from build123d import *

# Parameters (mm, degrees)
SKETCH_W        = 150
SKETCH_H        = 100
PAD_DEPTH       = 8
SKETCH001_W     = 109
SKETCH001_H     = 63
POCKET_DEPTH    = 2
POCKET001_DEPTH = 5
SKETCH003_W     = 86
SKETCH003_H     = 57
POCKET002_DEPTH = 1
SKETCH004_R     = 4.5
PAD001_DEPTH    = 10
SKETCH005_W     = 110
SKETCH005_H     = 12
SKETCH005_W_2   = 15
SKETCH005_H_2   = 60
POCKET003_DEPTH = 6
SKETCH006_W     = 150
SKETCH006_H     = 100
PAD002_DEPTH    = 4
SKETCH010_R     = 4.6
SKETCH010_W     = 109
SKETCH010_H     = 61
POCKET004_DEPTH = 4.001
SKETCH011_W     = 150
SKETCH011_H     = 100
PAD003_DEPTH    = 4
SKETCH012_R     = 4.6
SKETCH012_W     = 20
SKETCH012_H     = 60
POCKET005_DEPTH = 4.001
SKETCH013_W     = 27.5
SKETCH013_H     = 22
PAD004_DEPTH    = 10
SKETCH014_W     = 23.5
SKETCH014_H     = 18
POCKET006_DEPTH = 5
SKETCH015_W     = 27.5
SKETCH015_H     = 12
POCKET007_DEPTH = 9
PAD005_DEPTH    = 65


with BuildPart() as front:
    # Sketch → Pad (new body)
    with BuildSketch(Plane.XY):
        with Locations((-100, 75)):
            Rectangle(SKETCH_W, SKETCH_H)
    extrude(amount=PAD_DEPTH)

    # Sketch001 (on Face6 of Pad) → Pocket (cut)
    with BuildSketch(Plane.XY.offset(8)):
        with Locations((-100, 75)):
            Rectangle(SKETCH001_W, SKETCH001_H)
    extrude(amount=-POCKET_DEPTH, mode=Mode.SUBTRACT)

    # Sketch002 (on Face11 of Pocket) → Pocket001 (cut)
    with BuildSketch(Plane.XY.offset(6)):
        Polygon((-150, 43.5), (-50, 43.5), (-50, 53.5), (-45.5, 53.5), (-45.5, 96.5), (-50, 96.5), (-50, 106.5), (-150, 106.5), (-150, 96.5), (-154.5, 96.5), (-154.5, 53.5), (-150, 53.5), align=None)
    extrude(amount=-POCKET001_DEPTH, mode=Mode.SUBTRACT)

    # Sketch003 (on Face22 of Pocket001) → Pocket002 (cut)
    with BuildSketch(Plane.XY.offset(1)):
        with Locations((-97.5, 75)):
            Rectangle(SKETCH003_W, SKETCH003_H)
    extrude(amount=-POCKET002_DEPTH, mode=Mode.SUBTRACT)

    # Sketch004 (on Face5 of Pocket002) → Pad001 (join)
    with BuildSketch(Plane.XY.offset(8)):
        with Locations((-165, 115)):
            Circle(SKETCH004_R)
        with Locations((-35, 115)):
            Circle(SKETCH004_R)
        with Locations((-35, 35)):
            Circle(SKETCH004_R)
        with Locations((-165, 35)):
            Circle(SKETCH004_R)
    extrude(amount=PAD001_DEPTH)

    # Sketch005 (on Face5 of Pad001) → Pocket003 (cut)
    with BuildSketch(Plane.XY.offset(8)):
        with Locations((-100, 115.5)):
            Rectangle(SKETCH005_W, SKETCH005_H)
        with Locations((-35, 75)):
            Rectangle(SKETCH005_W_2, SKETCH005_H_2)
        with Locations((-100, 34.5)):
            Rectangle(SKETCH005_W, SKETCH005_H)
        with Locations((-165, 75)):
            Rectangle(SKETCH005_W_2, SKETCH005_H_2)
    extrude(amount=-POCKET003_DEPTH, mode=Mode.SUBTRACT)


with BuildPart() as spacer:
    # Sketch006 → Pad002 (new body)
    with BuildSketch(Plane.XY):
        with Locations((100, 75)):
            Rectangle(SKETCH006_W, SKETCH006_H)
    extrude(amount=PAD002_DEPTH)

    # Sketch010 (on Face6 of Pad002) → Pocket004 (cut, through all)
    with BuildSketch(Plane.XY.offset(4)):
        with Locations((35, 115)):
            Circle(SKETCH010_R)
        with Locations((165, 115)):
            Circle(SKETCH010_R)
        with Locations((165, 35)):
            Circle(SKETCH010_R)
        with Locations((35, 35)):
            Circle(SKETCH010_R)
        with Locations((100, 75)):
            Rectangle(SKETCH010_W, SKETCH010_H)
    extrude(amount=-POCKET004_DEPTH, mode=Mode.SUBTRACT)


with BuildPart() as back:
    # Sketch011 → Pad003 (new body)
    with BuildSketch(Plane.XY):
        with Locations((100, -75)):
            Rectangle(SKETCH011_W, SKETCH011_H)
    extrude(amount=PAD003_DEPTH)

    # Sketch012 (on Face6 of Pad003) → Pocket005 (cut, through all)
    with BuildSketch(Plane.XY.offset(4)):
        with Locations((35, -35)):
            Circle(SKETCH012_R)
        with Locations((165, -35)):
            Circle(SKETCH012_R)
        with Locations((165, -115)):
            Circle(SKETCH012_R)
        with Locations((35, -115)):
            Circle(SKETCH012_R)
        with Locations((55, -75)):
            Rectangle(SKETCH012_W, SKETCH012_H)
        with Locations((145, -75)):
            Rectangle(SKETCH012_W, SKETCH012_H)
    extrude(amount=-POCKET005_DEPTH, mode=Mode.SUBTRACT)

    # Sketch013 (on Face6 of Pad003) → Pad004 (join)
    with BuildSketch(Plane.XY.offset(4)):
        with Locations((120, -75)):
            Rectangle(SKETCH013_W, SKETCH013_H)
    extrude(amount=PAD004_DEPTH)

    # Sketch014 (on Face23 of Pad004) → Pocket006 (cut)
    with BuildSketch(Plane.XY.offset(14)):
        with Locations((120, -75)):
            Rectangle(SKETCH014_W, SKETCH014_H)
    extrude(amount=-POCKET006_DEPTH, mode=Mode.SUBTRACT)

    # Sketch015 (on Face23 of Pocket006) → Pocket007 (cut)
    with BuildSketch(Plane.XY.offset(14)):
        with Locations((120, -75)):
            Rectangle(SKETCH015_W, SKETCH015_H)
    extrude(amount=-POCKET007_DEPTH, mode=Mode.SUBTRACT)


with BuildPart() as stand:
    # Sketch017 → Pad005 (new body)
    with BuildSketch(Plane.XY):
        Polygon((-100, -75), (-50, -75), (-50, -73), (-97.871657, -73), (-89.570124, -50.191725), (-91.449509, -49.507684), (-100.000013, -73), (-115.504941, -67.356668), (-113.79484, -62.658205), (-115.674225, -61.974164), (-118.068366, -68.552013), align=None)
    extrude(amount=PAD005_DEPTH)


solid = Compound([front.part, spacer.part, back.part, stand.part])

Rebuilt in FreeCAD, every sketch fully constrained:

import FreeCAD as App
import Part
import Sketcher
Q = App.Units.Quantity

doc = App.newDocument("Part")
body = doc.addObject("PartDesign::Body", "Body")

# Sketch on XY plane
sketch1 = body.newObject("Sketcher::SketchObject", "Sketch")
sketch1.AttachmentSupport = (doc.getObject("XY_Plane"), [""])
sketch1.MapMode = "FlatFace"
sketch1.addGeometry(Part.LineSegment(App.Vector(-175, 125, 0), App.Vector(-175, 25, 0)), False)
sketch1.addGeometry(Part.LineSegment(App.Vector(-175, 25, 0), App.Vector(-25, 25, 0)), False)
sketch1.addGeometry(Part.LineSegment(App.Vector(-25, 25, 0), App.Vector(-25, 125, 0)), False)
sketch1.addGeometry(Part.LineSegment(App.Vector(-25, 125, 0), App.Vector(-175, 125, 0)), False)
sketch1.addConstraint(Sketcher.Constraint("Coincident", 0, 2, 1, 1))
sketch1.addConstraint(Sketcher.Constraint("Coincident", 1, 2, 2, 1))
sketch1.addConstraint(Sketcher.Constraint("Coincident", 2, 2, 3, 1))
sketch1.addConstraint(Sketcher.Constraint("Coincident", 3, 2, 0, 1))
sketch1.addConstraint(Sketcher.Constraint("Vertical", 0))
sketch1.addConstraint(Sketcher.Constraint("Horizontal", 1))
sketch1.addConstraint(Sketcher.Constraint("Vertical", 2))
sketch1.addConstraint(Sketcher.Constraint("Horizontal", 3))
sketch1.addConstraint(Sketcher.Constraint("DistanceX", 1, 1, 1, 2, Q("150 mm")))
sketch1.addConstraint(Sketcher.Constraint("DistanceY", 0, 2, 0, 1, Q("100 mm")))
sketch1.addConstraint(Sketcher.Constraint("DistanceX", 0, 2, -1, 1, Q("175 mm")))
sketch1.addConstraint(Sketcher.Constraint("DistanceY", -1, 1, 0, 2, Q("25 mm")))
pad1 = body.newObject("PartDesign::Pad", "Pad")
pad1.Profile = sketch1
pad1.Length = 8

# Sketch on XY plane
sketch2 = body.newObject("Sketcher::SketchObject", "Sketch001")
sketch2.AttachmentSupport = (doc.getObject("XY_Plane"), [""])
sketch2.MapMode = "FlatFace"
sketch2.AttachmentOffset = App.Placement(App.Vector(0, 0, 8), App.Rotation())
sketch2.addGeometry(Part.LineSegment(App.Vector(-154, 106, 0), App.Vector(-154, 44, 0)), False)
sketch2.addGeometry(Part.LineSegment(App.Vector(-154, 44, 0), App.Vector(-46, 44, 0)), False)
sketch2.addGeometry(Part.LineSegment(App.Vector(-46, 44, 0), App.Vector(-46, 106, 0)), False)
sketch2.addGeometry(Part.LineSegment(App.Vector(-46, 106, 0), App.Vector(-154, 106, 0)), False)
sketch2.addConstraint(Sketcher.Constraint("Coincident", 0, 2, 1, 1))
sketch2.addConstraint(Sketcher.Constraint("Coincident", 1, 2, 2, 1))
sketch2.addConstraint(Sketcher.Constraint("Coincident", 2, 2, 3, 1))
sketch2.addConstraint(Sketcher.Constraint("Coincident", 3, 2, 0, 1))
sketch2.addConstraint(Sketcher.Constraint("Vertical", 0))
sketch2.addConstraint(Sketcher.Constraint("Horizontal", 1))
sketch2.addConstraint(Sketcher.Constraint("Vertical", 2))
sketch2.addConstraint(Sketcher.Constraint("Horizontal", 3))
sketch2.addConstraint(Sketcher.Constraint("DistanceX", 1, 1, 1, 2, Q("109 mm")))
sketch2.addConstraint(Sketcher.Constraint("DistanceY", 0, 2, 0, 1, Q("63 mm")))
sketch2.addConstraint(Sketcher.Constraint("DistanceX", 0, 2, -1, 1, Q("154.5 mm")))
sketch2.addConstraint(Sketcher.Constraint("DistanceY", -1, 1, 0, 2, Q("43.5 mm")))
pocket1 = body.newObject("PartDesign::Pocket", "Pocket")
pocket1.Profile = sketch2
pocket1.Length = 2

# Sketch on XY plane
sketch3 = body.newObject("Sketcher::SketchObject", "Sketch002")
sketch3.AttachmentSupport = (doc.getObject("XY_Plane"), [""])
sketch3.MapMode = "FlatFace"
sketch3.AttachmentOffset = App.Placement(App.Vector(0, 0, 6), App.Rotation())
sketch3.addGeometry(Part.LineSegment(App.Vector(-150, 43.5, 0), App.Vector(-50, 43.5, 0)), False)
sketch3.addGeometry(Part.LineSegment(App.Vector(-50, 43.5, 0), App.Vector(-50, 53.5, 0)), False)
sketch3.addGeometry(Part.LineSegment(App.Vector(-50, 53.5, 0), App.Vector(-45.5, 53.5, 0)), False)
sketch3.addGeometry(Part.LineSegment(App.Vector(-45.5, 53.5, 0), App.Vector(-45.5, 96.5, 0)), False)
sketch3.addGeometry(Part.LineSegment(App.Vector(-45.5, 96.5, 0), App.Vector(-50, 96.5, 0)), False)
sketch3.addGeometry(Part.LineSegment(App.Vector(-50, 96.5, 0), App.Vector(-50, 106.5, 0)), False)
sketch3.addGeometry(Part.LineSegment(App.Vector(-50, 106.5, 0), App.Vector(-150, 106.5, 0)), False)
sketch3.addGeometry(Part.LineSegment(App.Vector(-150, 106.5, 0), App.Vector(-150, 96.5, 0)), False)
sketch3.addGeometry(Part.LineSegment(App.Vector(-150, 96.5, 0), App.Vector(-154.5, 96.5, 0)), False)
sketch3.addGeometry(Part.LineSegment(App.Vector(-154.5, 96.5, 0), App.Vector(-154.5, 53.5, 0)), False)
sketch3.addGeometry(Part.LineSegment(App.Vector(-154.5, 53.5, 0), App.Vector(-150, 53.5, 0)), False)
sketch3.addGeometry(Part.LineSegment(App.Vector(-150, 53.5, 0), App.Vector(-150, 43.5, 0)), False)
sketch3.addConstraint(Sketcher.Constraint("Coincident", 0, 2, 1, 1))
sketch3.addConstraint(Sketcher.Constraint("Coincident", 1, 2, 2, 1))
sketch3.addConstraint(Sketcher.Constraint("Coincident", 2, 2, 3, 1))
sketch3.addConstraint(Sketcher.Constraint("Coincident", 3, 2, 4, 1))
sketch3.addConstraint(Sketcher.Constraint("Coincident", 4, 2, 5, 1))
sketch3.addConstraint(Sketcher.Constraint("Coincident", 5, 2, 6, 1))
sketch3.addConstraint(Sketcher.Constraint("Coincident", 6, 2, 7, 1))
sketch3.addConstraint(Sketcher.Constraint("Coincident", 7, 2, 8, 1))
sketch3.addConstraint(Sketcher.Constraint("Coincident", 8, 2, 9, 1))
sketch3.addConstraint(Sketcher.Constraint("Coincident", 9, 2, 10, 1))
sketch3.addConstraint(Sketcher.Constraint("Coincident", 10, 2, 11, 1))
sketch3.addConstraint(Sketcher.Constraint("Coincident", 11, 2, 0, 1))
sketch3.addConstraint(Sketcher.Constraint("Horizontal", 0))
sketch3.addConstraint(Sketcher.Constraint("Vertical", 1))
sketch3.addConstraint(Sketcher.Constraint("Horizontal", 2))
sketch3.addConstraint(Sketcher.Constraint("Vertical", 3))
sketch3.addConstraint(Sketcher.Constraint("Horizontal", 4))
sketch3.addConstraint(Sketcher.Constraint("Vertical", 5))
sketch3.addConstraint(Sketcher.Constraint("Horizontal", 6))
sketch3.addConstraint(Sketcher.Constraint("Vertical", 7))
sketch3.addConstraint(Sketcher.Constraint("Horizontal", 8))
sketch3.addConstraint(Sketcher.Constraint("Vertical", 9))
sketch3.addConstraint(Sketcher.Constraint("Horizontal", 10))
sketch3.addConstraint(Sketcher.Constraint("Vertical", 11))
sketch3.addConstraint(Sketcher.Constraint("Horizontal", 4, 2, 7, 2))
sketch3.addConstraint(Sketcher.Constraint("Horizontal", 2, 2, 9, 2))
sketch3.addConstraint(Sketcher.Constraint("Vertical", 1, 2, 4, 2))
sketch3.addConstraint(Sketcher.Constraint("Vertical", 7, 2, 10, 2))
sketch3.addConstraint(Sketcher.Constraint("Equal", 4, 8))
sketch3.addConstraint(Sketcher.Constraint("Equal", 1, 5))
sketch3.addConstraint(Sketcher.Constraint("DistanceX", 0, 1, 0, 2, Q("100 mm")))
sketch3.addConstraint(Sketcher.Constraint("DistanceY", 1, 1, 1, 2, Q("10 mm")))
sketch3.addConstraint(Sketcher.Constraint("DistanceY", 3, 1, 3, 2, Q("43 mm")))
sketch3.addConstraint(Sketcher.Constraint("DistanceX", 2, 1, 2, 2, Q("4.5 mm")))
sketch3.addConstraint(Sketcher.Constraint("DistanceX", 0, 2, -1, 1, Q("50 mm")))
sketch3.addConstraint(Sketcher.Constraint("DistanceY", -1, 1, 0, 2, Q("43.5 mm")))
pocket2 = body.newObject("PartDesign::Pocket", "Pocket001")
pocket2.Profile = sketch3
pocket2.Length = 5

# Sketch on XY plane
sketch4 = body.newObject("Sketcher::SketchObject", "Sketch003")
sketch4.AttachmentSupport = (doc.getObject("XY_Plane"), [""])
sketch4.MapMode = "FlatFace"
sketch4.AttachmentOffset = App.Placement(App.Vector(0, 0, 1), App.Rotation())
sketch4.addGeometry(Part.LineSegment(App.Vector(-140, 104, 0), App.Vector(-140, 46, 0)), False)
sketch4.addGeometry(Part.LineSegment(App.Vector(-140, 46, 0), App.Vector(-54, 46, 0)), False)
sketch4.addGeometry(Part.LineSegment(App.Vector(-54, 46, 0), App.Vector(-54, 104, 0)), False)
sketch4.addGeometry(Part.LineSegment(App.Vector(-54, 104, 0), App.Vector(-140, 104, 0)), False)
sketch4.addConstraint(Sketcher.Constraint("Coincident", 0, 2, 1, 1))
sketch4.addConstraint(Sketcher.Constraint("Coincident", 1, 2, 2, 1))
sketch4.addConstraint(Sketcher.Constraint("Coincident", 2, 2, 3, 1))
sketch4.addConstraint(Sketcher.Constraint("Coincident", 3, 2, 0, 1))
sketch4.addConstraint(Sketcher.Constraint("Vertical", 0))
sketch4.addConstraint(Sketcher.Constraint("Horizontal", 1))
sketch4.addConstraint(Sketcher.Constraint("Vertical", 2))
sketch4.addConstraint(Sketcher.Constraint("Horizontal", 3))
sketch4.addConstraint(Sketcher.Constraint("DistanceX", 1, 1, 1, 2, Q("86 mm")))
sketch4.addConstraint(Sketcher.Constraint("DistanceY", 0, 2, 0, 1, Q("57 mm")))
sketch4.addConstraint(Sketcher.Constraint("DistanceX", 0, 2, -1, 1, Q("140.5 mm")))
sketch4.addConstraint(Sketcher.Constraint("DistanceY", -1, 1, 0, 2, Q("46.5 mm")))
pocket3 = body.newObject("PartDesign::Pocket", "Pocket002")
pocket3.Profile = sketch4
pocket3.Length = 1

# Sketch on XY plane
sketch5 = body.newObject("Sketcher::SketchObject", "Sketch004")
sketch5.AttachmentSupport = (doc.getObject("XY_Plane"), [""])
sketch5.MapMode = "FlatFace"
sketch5.AttachmentOffset = App.Placement(App.Vector(0, 0, 8), App.Rotation())
sketch5.addGeometry(Part.Circle(App.Vector(-165, 115, 0), App.Vector(0, 0, 1), 4.5), False)
sketch5.addGeometry(Part.Circle(App.Vector(-35, 115, 0), App.Vector(0, 0, 1), 4.5), False)
sketch5.addGeometry(Part.Circle(App.Vector(-35, 35, 0), App.Vector(0, 0, 1), 4.5), False)
sketch5.addGeometry(Part.Circle(App.Vector(-165, 35, 0), App.Vector(0, 0, 1), 4.5), False)
sketch5.addConstraint(Sketcher.Constraint("Equal", 0, 1))
sketch5.addConstraint(Sketcher.Constraint("Equal", 1, 2))
sketch5.addConstraint(Sketcher.Constraint("Equal", 2, 3))
sketch5.addConstraint(Sketcher.Constraint("Horizontal", 0, 3, 1, 3))
sketch5.addConstraint(Sketcher.Constraint("Horizontal", 2, 3, 3, 3))
sketch5.addConstraint(Sketcher.Constraint("Vertical", 1, 3, 2, 3))
sketch5.addConstraint(Sketcher.Constraint("Vertical", 0, 3, 3, 3))
sketch5.addConstraint(Sketcher.Constraint("Diameter", 0, Q("9 mm")))
sketch5.addConstraint(Sketcher.Constraint("DistanceX", 0, 3, -1, 1, Q("165 mm")))
sketch5.addConstraint(Sketcher.Constraint("DistanceY", -1, 1, 0, 3, Q("115 mm")))
sketch5.addConstraint(Sketcher.Constraint("DistanceX", 1, 3, -1, 1, Q("35 mm")))
sketch5.addConstraint(Sketcher.Constraint("DistanceY", -1, 1, 2, 3, Q("35 mm")))
pad2 = body.newObject("PartDesign::Pad", "Pad001")
pad2.Profile = sketch5
pad2.Length = 10

# Sketch on XY plane
sketch6 = body.newObject("Sketcher::SketchObject", "Sketch005")
sketch6.AttachmentSupport = (doc.getObject("XY_Plane"), [""])
sketch6.MapMode = "FlatFace"
sketch6.AttachmentOffset = App.Placement(App.Vector(0, 0, 8), App.Rotation())
sketch6.addGeometry(Part.LineSegment(App.Vector(-155, 122, 0), App.Vector(-155, 110, 0)), False)
sketch6.addGeometry(Part.LineSegment(App.Vector(-155, 110, 0), App.Vector(-45, 110, 0)), False)
sketch6.addGeometry(Part.LineSegment(App.Vector(-45, 110, 0), App.Vector(-45, 122, 0)), False)
sketch6.addGeometry(Part.LineSegment(App.Vector(-45, 122, 0), App.Vector(-155, 122, 0)), False)
sketch6.addGeometry(Part.LineSegment(App.Vector(-42, 105, 0), App.Vector(-42, 45, 0)), False)
sketch6.addGeometry(Part.LineSegment(App.Vector(-42, 45, 0), App.Vector(-28, 45, 0)), False)
sketch6.addGeometry(Part.LineSegment(App.Vector(-28, 45, 0), App.Vector(-28, 105, 0)), False)
sketch6.addGeometry(Part.LineSegment(App.Vector(-28, 105, 0), App.Vector(-42, 105, 0)), False)
sketch6.addGeometry(Part.LineSegment(App.Vector(-155, 40, 0), App.Vector(-155, 28, 0)), False)
sketch6.addGeometry(Part.LineSegment(App.Vector(-155, 28, 0), App.Vector(-45, 28, 0)), False)
sketch6.addGeometry(Part.LineSegment(App.Vector(-45, 28, 0), App.Vector(-45, 40, 0)), False)
sketch6.addGeometry(Part.LineSegment(App.Vector(-45, 40, 0), App.Vector(-155, 40, 0)), False)
sketch6.addGeometry(Part.LineSegment(App.Vector(-172, 105, 0), App.Vector(-172, 45, 0)), False)
sketch6.addGeometry(Part.LineSegment(App.Vector(-172, 45, 0), App.Vector(-158, 45, 0)), False)
sketch6.addGeometry(Part.LineSegment(App.Vector(-158, 45, 0), App.Vector(-158, 105, 0)), False)
sketch6.addGeometry(Part.LineSegment(App.Vector(-158, 105, 0), App.Vector(-172, 105, 0)), False)
sketch6.addConstraint(Sketcher.Constraint("Coincident", 0, 2, 1, 1))
sketch6.addConstraint(Sketcher.Constraint("Coincident", 1, 2, 2, 1))
sketch6.addConstraint(Sketcher.Constraint("Coincident", 2, 2, 3, 1))
sketch6.addConstraint(Sketcher.Constraint("Coincident", 3, 2, 0, 1))
sketch6.addConstraint(Sketcher.Constraint("Coincident", 4, 2, 5, 1))
sketch6.addConstraint(Sketcher.Constraint("Coincident", 5, 2, 6, 1))
sketch6.addConstraint(Sketcher.Constraint("Coincident", 6, 2, 7, 1))
sketch6.addConstraint(Sketcher.Constraint("Coincident", 7, 2, 4, 1))
sketch6.addConstraint(Sketcher.Constraint("Coincident", 8, 2, 9, 1))
sketch6.addConstraint(Sketcher.Constraint("Coincident", 9, 2, 10, 1))
sketch6.addConstraint(Sketcher.Constraint("Coincident", 10, 2, 11, 1))
sketch6.addConstraint(Sketcher.Constraint("Coincident", 11, 2, 8, 1))
sketch6.addConstraint(Sketcher.Constraint("Coincident", 12, 2, 13, 1))
sketch6.addConstraint(Sketcher.Constraint("Coincident", 13, 2, 14, 1))
sketch6.addConstraint(Sketcher.Constraint("Coincident", 14, 2, 15, 1))
sketch6.addConstraint(Sketcher.Constraint("Coincident", 15, 2, 12, 1))
sketch6.addConstraint(Sketcher.Constraint("Vertical", 0))
sketch6.addConstraint(Sketcher.Constraint("Horizontal", 1))
sketch6.addConstraint(Sketcher.Constraint("Vertical", 2))
sketch6.addConstraint(Sketcher.Constraint("Horizontal", 3))
sketch6.addConstraint(Sketcher.Constraint("Vertical", 4))
sketch6.addConstraint(Sketcher.Constraint("Horizontal", 5))
sketch6.addConstraint(Sketcher.Constraint("Vertical", 6))
sketch6.addConstraint(Sketcher.Constraint("Horizontal", 7))
sketch6.addConstraint(Sketcher.Constraint("Vertical", 8))
sketch6.addConstraint(Sketcher.Constraint("Horizontal", 9))
sketch6.addConstraint(Sketcher.Constraint("Vertical", 10))
sketch6.addConstraint(Sketcher.Constraint("Horizontal", 11))
sketch6.addConstraint(Sketcher.Constraint("Vertical", 12))
sketch6.addConstraint(Sketcher.Constraint("Horizontal", 13))
sketch6.addConstraint(Sketcher.Constraint("Vertical", 14))
sketch6.addConstraint(Sketcher.Constraint("Horizontal", 15))
sketch6.addConstraint(Sketcher.Constraint("Horizontal", 5, 2, 12, 2))
sketch6.addConstraint(Sketcher.Constraint("Horizontal", 7, 2, 14, 2))
sketch6.addConstraint(Sketcher.Constraint("Vertical", 3, 2, 8, 2))
sketch6.addConstraint(Sketcher.Constraint("Vertical", 2, 2, 9, 2))
sketch6.addConstraint(Sketcher.Constraint("Equal", 7, 13))
sketch6.addConstraint(Sketcher.Constraint("Equal", 2, 8))
sketch6.addConstraint(Sketcher.Constraint("DistanceX", 1, 1, 1, 2, Q("110 mm")))
sketch6.addConstraint(Sketcher.Constraint("DistanceX", 5, 1, 5, 2, Q("15 mm")))
sketch6.addConstraint(Sketcher.Constraint("DistanceY", 0, 2, 0, 1, Q("12 mm")))
sketch6.addConstraint(Sketcher.Constraint("DistanceY", 4, 2, 4, 1, Q("60 mm")))
sketch6.addConstraint(Sketcher.Constraint("DistanceX", 0, 2, -1, 1, Q("155 mm")))
sketch6.addConstraint(Sketcher.Constraint("DistanceY", -1, 1, 4, 2, Q("45 mm")))
sketch6.addConstraint(Sketcher.Constraint("DistanceY", 8, 2, 0, 2, Q("81 mm")))
sketch6.addConstraint(Sketcher.Constraint("DistanceY", -1, 1, 0, 2, Q("109.5 mm")))
sketch6.addConstraint(Sketcher.Constraint("DistanceX", 4, 2, -1, 1, Q("42.5 mm")))
sketch6.addConstraint(Sketcher.Constraint("DistanceX", 12, 2, -1, 1, Q("172.5 mm")))
pocket4 = body.newObject("PartDesign::Pocket", "Pocket003")
pocket4.Profile = sketch6
pocket4.Length = 6
body2 = doc.addObject("PartDesign::Body", "Body001")

# Sketch on XY plane
sketch7 = body2.newObject("Sketcher::SketchObject", "Sketch006")
sketch7.AttachmentSupport = (doc.getObject("XY_Plane001"), [""])
sketch7.MapMode = "FlatFace"
sketch7.addGeometry(Part.LineSegment(App.Vector(25, 125, 0), App.Vector(25, 25, 0)), False)
sketch7.addGeometry(Part.LineSegment(App.Vector(25, 25, 0), App.Vector(175, 25, 0)), False)
sketch7.addGeometry(Part.LineSegment(App.Vector(175, 25, 0), App.Vector(175, 125, 0)), False)
sketch7.addGeometry(Part.LineSegment(App.Vector(175, 125, 0), App.Vector(25, 125, 0)), False)
sketch7.addConstraint(Sketcher.Constraint("Coincident", 0, 2, 1, 1))
sketch7.addConstraint(Sketcher.Constraint("Coincident", 1, 2, 2, 1))
sketch7.addConstraint(Sketcher.Constraint("Coincident", 2, 2, 3, 1))
sketch7.addConstraint(Sketcher.Constraint("Coincident", 3, 2, 0, 1))
sketch7.addConstraint(Sketcher.Constraint("Vertical", 0))
sketch7.addConstraint(Sketcher.Constraint("Horizontal", 1))
sketch7.addConstraint(Sketcher.Constraint("Vertical", 2))
sketch7.addConstraint(Sketcher.Constraint("Horizontal", 3))
sketch7.addConstraint(Sketcher.Constraint("DistanceX", 1, 1, 1, 2, Q("150 mm")))
sketch7.addConstraint(Sketcher.Constraint("DistanceY", 0, 2, 0, 1, Q("100 mm")))
sketch7.addConstraint(Sketcher.Constraint("DistanceX", -1, 1, 0, 2, Q("25 mm")))
sketch7.addConstraint(Sketcher.Constraint("DistanceY", -1, 1, 0, 2, Q("25 mm")))
pad3 = body2.newObject("PartDesign::Pad", "Pad002")
pad3.Profile = sketch7
pad3.Length = 4

# Sketch on XY plane
sketch8 = body2.newObject("Sketcher::SketchObject", "Sketch007")
sketch8.AttachmentSupport = (doc.getObject("XY_Plane001"), [""])
sketch8.MapMode = "FlatFace"
sketch8.AttachmentOffset = App.Placement(App.Vector(0, 0, 4), App.Rotation())
sketch8.addGeometry(Part.Circle(App.Vector(35, 115, 0), App.Vector(0, 0, 1), 4.6), False)
sketch8.addGeometry(Part.Circle(App.Vector(165, 115, 0), App.Vector(0, 0, 1), 4.6), False)
sketch8.addGeometry(Part.Circle(App.Vector(165, 35, 0), App.Vector(0, 0, 1), 4.6), False)
sketch8.addGeometry(Part.Circle(App.Vector(35, 35, 0), App.Vector(0, 0, 1), 4.6), False)
sketch8.addGeometry(Part.LineSegment(App.Vector(45.5, 105.5, 0), App.Vector(45.5, 44.5, 0)), False)
sketch8.addGeometry(Part.LineSegment(App.Vector(45.5, 44.5, 0), App.Vector(154.5, 44.5, 0)), False)
sketch8.addGeometry(Part.LineSegment(App.Vector(154.5, 44.5, 0), App.Vector(154.5, 105.5, 0)), False)
sketch8.addGeometry(Part.LineSegment(App.Vector(154.5, 105.5, 0), App.Vector(45.5, 105.5, 0)), False)
sketch8.addConstraint(Sketcher.Constraint("Coincident", 4, 2, 5, 1))
sketch8.addConstraint(Sketcher.Constraint("Coincident", 5, 2, 6, 1))
sketch8.addConstraint(Sketcher.Constraint("Coincident", 6, 2, 7, 1))
sketch8.addConstraint(Sketcher.Constraint("Coincident", 7, 2, 4, 1))
sketch8.addConstraint(Sketcher.Constraint("Vertical", 4))
sketch8.addConstraint(Sketcher.Constraint("Horizontal", 5))
sketch8.addConstraint(Sketcher.Constraint("Vertical", 6))
sketch8.addConstraint(Sketcher.Constraint("Horizontal", 7))
sketch8.addConstraint(Sketcher.Constraint("Equal", 0, 1))
sketch8.addConstraint(Sketcher.Constraint("Equal", 1, 2))
sketch8.addConstraint(Sketcher.Constraint("Equal", 2, 3))
sketch8.addConstraint(Sketcher.Constraint("Horizontal", 0, 3, 1, 3))
sketch8.addConstraint(Sketcher.Constraint("Horizontal", 2, 3, 3, 3))
sketch8.addConstraint(Sketcher.Constraint("Vertical", 1, 3, 2, 3))
sketch8.addConstraint(Sketcher.Constraint("Vertical", 0, 3, 3, 3))
sketch8.addConstraint(Sketcher.Constraint("Diameter", 0, Q("9.2 mm")))
sketch8.addConstraint(Sketcher.Constraint("DistanceX", 5, 1, 5, 2, Q("109 mm")))
sketch8.addConstraint(Sketcher.Constraint("DistanceY", 4, 2, 4, 1, Q("61 mm")))
sketch8.addConstraint(Sketcher.Constraint("DistanceX", -1, 1, 0, 3, Q("35 mm")))
sketch8.addConstraint(Sketcher.Constraint("DistanceY", -1, 1, 0, 3, Q("115 mm")))
sketch8.addConstraint(Sketcher.Constraint("DistanceX", -1, 1, 1, 3, Q("165 mm")))
sketch8.addConstraint(Sketcher.Constraint("DistanceY", -1, 1, 2, 3, Q("35 mm")))
sketch8.addConstraint(Sketcher.Constraint("DistanceX", -1, 1, 4, 2, Q("45.5 mm")))
sketch8.addConstraint(Sketcher.Constraint("DistanceY", -1, 1, 4, 2, Q("44.5 mm")))
pocket5 = body2.newObject("PartDesign::Pocket", "Pocket004")
pocket5.Profile = sketch8
pocket5.Type = "ThroughAll"
body3 = doc.addObject("PartDesign::Body", "Body002")

# Sketch on XY plane
sketch9 = body3.newObject("Sketcher::SketchObject", "Sketch008")
sketch9.AttachmentSupport = (doc.getObject("XY_Plane002"), [""])
sketch9.MapMode = "FlatFace"
sketch9.addGeometry(Part.LineSegment(App.Vector(25, -25, 0), App.Vector(25, -125, 0)), False)
sketch9.addGeometry(Part.LineSegment(App.Vector(25, -125, 0), App.Vector(175, -125, 0)), False)
sketch9.addGeometry(Part.LineSegment(App.Vector(175, -125, 0), App.Vector(175, -25, 0)), False)
sketch9.addGeometry(Part.LineSegment(App.Vector(175, -25, 0), App.Vector(25, -25, 0)), False)
sketch9.addConstraint(Sketcher.Constraint("Coincident", 0, 2, 1, 1))
sketch9.addConstraint(Sketcher.Constraint("Coincident", 1, 2, 2, 1))
sketch9.addConstraint(Sketcher.Constraint("Coincident", 2, 2, 3, 1))
sketch9.addConstraint(Sketcher.Constraint("Coincident", 3, 2, 0, 1))
sketch9.addConstraint(Sketcher.Constraint("Vertical", 0))
sketch9.addConstraint(Sketcher.Constraint("Horizontal", 1))
sketch9.addConstraint(Sketcher.Constraint("Vertical", 2))
sketch9.addConstraint(Sketcher.Constraint("Horizontal", 3))
sketch9.addConstraint(Sketcher.Constraint("DistanceX", 1, 1, 1, 2, Q("150 mm")))
sketch9.addConstraint(Sketcher.Constraint("DistanceY", 0, 2, 0, 1, Q("100 mm")))
sketch9.addConstraint(Sketcher.Constraint("DistanceX", -1, 1, 0, 2, Q("25 mm")))
sketch9.addConstraint(Sketcher.Constraint("DistanceY", 0, 2, -1, 1, Q("125 mm")))
pad4 = body3.newObject("PartDesign::Pad", "Pad003")
pad4.Profile = sketch9
pad4.Length = 4

# Sketch on XY plane
sketch10 = body3.newObject("Sketcher::SketchObject", "Sketch009")
sketch10.AttachmentSupport = (doc.getObject("XY_Plane002"), [""])
sketch10.MapMode = "FlatFace"
sketch10.AttachmentOffset = App.Placement(App.Vector(0, 0, 4), App.Rotation())
sketch10.addGeometry(Part.Circle(App.Vector(35, -35, 0), App.Vector(0, 0, 1), 4.6), False)
sketch10.addGeometry(Part.Circle(App.Vector(165, -35, 0), App.Vector(0, 0, 1), 4.6), False)
sketch10.addGeometry(Part.Circle(App.Vector(165, -115, 0), App.Vector(0, 0, 1), 4.6), False)
sketch10.addGeometry(Part.Circle(App.Vector(35, -115, 0), App.Vector(0, 0, 1), 4.6), False)
sketch10.addGeometry(Part.LineSegment(App.Vector(45, -45, 0), App.Vector(45, -105, 0)), False)
sketch10.addGeometry(Part.LineSegment(App.Vector(45, -105, 0), App.Vector(65, -105, 0)), False)
sketch10.addGeometry(Part.LineSegment(App.Vector(65, -105, 0), App.Vector(65, -45, 0)), False)
sketch10.addGeometry(Part.LineSegment(App.Vector(65, -45, 0), App.Vector(45, -45, 0)), False)
sketch10.addGeometry(Part.LineSegment(App.Vector(135, -45, 0), App.Vector(135, -105, 0)), False)
sketch10.addGeometry(Part.LineSegment(App.Vector(135, -105, 0), App.Vector(155, -105, 0)), False)
sketch10.addGeometry(Part.LineSegment(App.Vector(155, -105, 0), App.Vector(155, -45, 0)), False)
sketch10.addGeometry(Part.LineSegment(App.Vector(155, -45, 0), App.Vector(135, -45, 0)), False)
sketch10.addConstraint(Sketcher.Constraint("Coincident", 4, 2, 5, 1))
sketch10.addConstraint(Sketcher.Constraint("Coincident", 5, 2, 6, 1))
sketch10.addConstraint(Sketcher.Constraint("Coincident", 6, 2, 7, 1))
sketch10.addConstraint(Sketcher.Constraint("Coincident", 7, 2, 4, 1))
sketch10.addConstraint(Sketcher.Constraint("Coincident", 8, 2, 9, 1))
sketch10.addConstraint(Sketcher.Constraint("Coincident", 9, 2, 10, 1))
sketch10.addConstraint(Sketcher.Constraint("Coincident", 10, 2, 11, 1))
sketch10.addConstraint(Sketcher.Constraint("Coincident", 11, 2, 8, 1))
sketch10.addConstraint(Sketcher.Constraint("Vertical", 4))
sketch10.addConstraint(Sketcher.Constraint("Horizontal", 5))
sketch10.addConstraint(Sketcher.Constraint("Vertical", 6))
sketch10.addConstraint(Sketcher.Constraint("Horizontal", 7))
sketch10.addConstraint(Sketcher.Constraint("Vertical", 8))
sketch10.addConstraint(Sketcher.Constraint("Horizontal", 9))
sketch10.addConstraint(Sketcher.Constraint("Vertical", 10))
sketch10.addConstraint(Sketcher.Constraint("Horizontal", 11))
sketch10.addConstraint(Sketcher.Constraint("Equal", 0, 1))
sketch10.addConstraint(Sketcher.Constraint("Equal", 1, 2))
sketch10.addConstraint(Sketcher.Constraint("Equal", 2, 3))
sketch10.addConstraint(Sketcher.Constraint("Horizontal", 0, 3, 1, 3))
sketch10.addConstraint(Sketcher.Constraint("Horizontal", 2, 3, 3, 3))
sketch10.addConstraint(Sketcher.Constraint("Horizontal", 5, 2, 8, 2))
sketch10.addConstraint(Sketcher.Constraint("Horizontal", 7, 2, 10, 2))
sketch10.addConstraint(Sketcher.Constraint("Vertical", 1, 3, 2, 3))
sketch10.addConstraint(Sketcher.Constraint("Vertical", 0, 3, 3, 3))
sketch10.addConstraint(Sketcher.Constraint("Equal", 7, 9))
sketch10.addConstraint(Sketcher.Constraint("Diameter", 0, Q("9.2 mm")))
sketch10.addConstraint(Sketcher.Constraint("DistanceX", 5, 1, 5, 2, Q("20 mm")))
sketch10.addConstraint(Sketcher.Constraint("DistanceY", 4, 2, 4, 1, Q("60 mm")))
sketch10.addConstraint(Sketcher.Constraint("DistanceX", -1, 1, 0, 3, Q("35 mm")))
sketch10.addConstraint(Sketcher.Constraint("DistanceY", 0, 3, -1, 1, Q("35 mm")))
sketch10.addConstraint(Sketcher.Constraint("DistanceX", -1, 1, 1, 3, Q("165 mm")))
sketch10.addConstraint(Sketcher.Constraint("DistanceY", 2, 3, -1, 1, Q("115 mm")))
sketch10.addConstraint(Sketcher.Constraint("DistanceX", -1, 1, 4, 2, Q("45 mm")))
sketch10.addConstraint(Sketcher.Constraint("DistanceY", 4, 2, -1, 1, Q("105 mm")))
sketch10.addConstraint(Sketcher.Constraint("DistanceX", -1, 1, 8, 2, Q("135 mm")))
pocket6 = body3.newObject("PartDesign::Pocket", "Pocket005")
pocket6.Profile = sketch10
pocket6.Type = "ThroughAll"

# Sketch on XY plane
sketch11 = body3.newObject("Sketcher::SketchObject", "Sketch010")
sketch11.AttachmentSupport = (doc.getObject("XY_Plane002"), [""])
sketch11.MapMode = "FlatFace"
sketch11.AttachmentOffset = App.Placement(App.Vector(0, 0, 4), App.Rotation())
sketch11.addGeometry(Part.LineSegment(App.Vector(106, -64, 0), App.Vector(106, -86, 0)), False)
sketch11.addGeometry(Part.LineSegment(App.Vector(106, -86, 0), App.Vector(134, -86, 0)), False)
sketch11.addGeometry(Part.LineSegment(App.Vector(134, -86, 0), App.Vector(134, -64, 0)), False)
sketch11.addGeometry(Part.LineSegment(App.Vector(134, -64, 0), App.Vector(106, -64, 0)), False)
sketch11.addConstraint(Sketcher.Constraint("Coincident", 0, 2, 1, 1))
sketch11.addConstraint(Sketcher.Constraint("Coincident", 1, 2, 2, 1))
sketch11.addConstraint(Sketcher.Constraint("Coincident", 2, 2, 3, 1))
sketch11.addConstraint(Sketcher.Constraint("Coincident", 3, 2, 0, 1))
sketch11.addConstraint(Sketcher.Constraint("Vertical", 0))
sketch11.addConstraint(Sketcher.Constraint("Horizontal", 1))
sketch11.addConstraint(Sketcher.Constraint("Vertical", 2))
sketch11.addConstraint(Sketcher.Constraint("Horizontal", 3))
sketch11.addConstraint(Sketcher.Constraint("DistanceY", 0, 2, 0, 1, Q("22 mm")))
sketch11.addConstraint(Sketcher.Constraint("DistanceX", 1, 1, 1, 2, Q("27.5 mm")))
sketch11.addConstraint(Sketcher.Constraint("DistanceY", 0, 2, -1, 1, Q("86 mm")))
sketch11.addConstraint(Sketcher.Constraint("DistanceX", -1, 1, 0, 2, Q("106.25 mm")))
pad5 = body3.newObject("PartDesign::Pad", "Pad004")
pad5.Profile = sketch11
pad5.Length = 10

# Sketch on XY plane
sketch12 = body3.newObject("Sketcher::SketchObject", "Sketch011")
sketch12.AttachmentSupport = (doc.getObject("XY_Plane002"), [""])
sketch12.MapMode = "FlatFace"
sketch12.AttachmentOffset = App.Placement(App.Vector(0, 0, 14), App.Rotation())
sketch12.addGeometry(Part.LineSegment(App.Vector(108, -66, 0), App.Vector(108, -84, 0)), False)
sketch12.addGeometry(Part.LineSegment(App.Vector(108, -84, 0), App.Vector(132, -84, 0)), False)
sketch12.addGeometry(Part.LineSegment(App.Vector(132, -84, 0), App.Vector(132, -66, 0)), False)
sketch12.addGeometry(Part.LineSegment(App.Vector(132, -66, 0), App.Vector(108, -66, 0)), False)
sketch12.addConstraint(Sketcher.Constraint("Coincident", 0, 2, 1, 1))
sketch12.addConstraint(Sketcher.Constraint("Coincident", 1, 2, 2, 1))
sketch12.addConstraint(Sketcher.Constraint("Coincident", 2, 2, 3, 1))
sketch12.addConstraint(Sketcher.Constraint("Coincident", 3, 2, 0, 1))
sketch12.addConstraint(Sketcher.Constraint("Vertical", 0))
sketch12.addConstraint(Sketcher.Constraint("Horizontal", 1))
sketch12.addConstraint(Sketcher.Constraint("Vertical", 2))
sketch12.addConstraint(Sketcher.Constraint("Horizontal", 3))
sketch12.addConstraint(Sketcher.Constraint("DistanceY", 0, 2, 0, 1, Q("18 mm")))
sketch12.addConstraint(Sketcher.Constraint("DistanceX", 1, 1, 1, 2, Q("23.5 mm")))
sketch12.addConstraint(Sketcher.Constraint("DistanceY", 0, 2, -1, 1, Q("84 mm")))
sketch12.addConstraint(Sketcher.Constraint("DistanceX", -1, 1, 0, 2, Q("108.25 mm")))
pocket7 = body3.newObject("PartDesign::Pocket", "Pocket006")
pocket7.Profile = sketch12
pocket7.Length = 5

# Sketch on XY plane
sketch13 = body3.newObject("Sketcher::SketchObject", "Sketch012")
sketch13.AttachmentSupport = (doc.getObject("XY_Plane002"), [""])
sketch13.MapMode = "FlatFace"
sketch13.AttachmentOffset = App.Placement(App.Vector(0, 0, 14), App.Rotation())
sketch13.addGeometry(Part.LineSegment(App.Vector(106, -69, 0), App.Vector(106, -81, 0)), False)
sketch13.addGeometry(Part.LineSegment(App.Vector(106, -81, 0), App.Vector(134, -81, 0)), False)
sketch13.addGeometry(Part.LineSegment(App.Vector(134, -81, 0), App.Vector(134, -69, 0)), False)
sketch13.addGeometry(Part.LineSegment(App.Vector(134, -69, 0), App.Vector(106, -69, 0)), False)
sketch13.addConstraint(Sketcher.Constraint("Coincident", 0, 2, 1, 1))
sketch13.addConstraint(Sketcher.Constraint("Coincident", 1, 2, 2, 1))
sketch13.addConstraint(Sketcher.Constraint("Coincident", 2, 2, 3, 1))
sketch13.addConstraint(Sketcher.Constraint("Coincident", 3, 2, 0, 1))
sketch13.addConstraint(Sketcher.Constraint("Vertical", 0))
sketch13.addConstraint(Sketcher.Constraint("Horizontal", 1))
sketch13.addConstraint(Sketcher.Constraint("Vertical", 2))
sketch13.addConstraint(Sketcher.Constraint("Horizontal", 3))
sketch13.addConstraint(Sketcher.Constraint("DistanceY", 0, 2, 0, 1, Q("12 mm")))
sketch13.addConstraint(Sketcher.Constraint("DistanceX", 1, 1, 1, 2, Q("27.5 mm")))
sketch13.addConstraint(Sketcher.Constraint("DistanceY", 0, 2, -1, 1, Q("81 mm")))
sketch13.addConstraint(Sketcher.Constraint("DistanceX", -1, 1, 0, 2, Q("106.25 mm")))
pocket8 = body3.newObject("PartDesign::Pocket", "Pocket007")
pocket8.Profile = sketch13
pocket8.Length = 9
body4 = doc.addObject("PartDesign::Body", "Body003")

# Sketch on XY plane
sketch14 = body4.newObject("Sketcher::SketchObject", "Sketch013")
sketch14.AttachmentSupport = (doc.getObject("XY_Plane003"), [""])
sketch14.MapMode = "FlatFace"
sketch14.addGeometry(Part.LineSegment(App.Vector(-100, -75, 0), App.Vector(-50, -75, 0)), False)
sketch14.addGeometry(Part.LineSegment(App.Vector(-50, -75, 0), App.Vector(-50, -73, 0)), False)
sketch14.addGeometry(Part.LineSegment(App.Vector(-50, -73, 0), App.Vector(-97.9, -73, 0)), False)
sketch14.addGeometry(Part.LineSegment(App.Vector(-97.9, -73, 0), App.Vector(-89.6, -50.2, 0)), False)
sketch14.addGeometry(Part.LineSegment(App.Vector(-89.6, -50.2, 0), App.Vector(-91.4, -49.5, 0)), False)
sketch14.addGeometry(Part.LineSegment(App.Vector(-91.4, -49.5, 0), App.Vector(-100, -73, 0)), False)
sketch14.addGeometry(Part.LineSegment(App.Vector(-100, -73, 0), App.Vector(-115.5, -67.4, 0)), False)
sketch14.addGeometry(Part.LineSegment(App.Vector(-115.5, -67.4, 0), App.Vector(-113.8, -62.7, 0)), False)
sketch14.addGeometry(Part.LineSegment(App.Vector(-113.8, -62.7, 0), App.Vector(-115.7, -62, 0)), False)
sketch14.addGeometry(Part.LineSegment(App.Vector(-115.7, -62, 0), App.Vector(-118.1, -68.6, 0)), False)
sketch14.addGeometry(Part.LineSegment(App.Vector(-118.1, -68.6, 0), App.Vector(-100, -75, 0)), False)
sketch14.addConstraint(Sketcher.Constraint("Coincident", 0, 2, 1, 1))
sketch14.addConstraint(Sketcher.Constraint("Coincident", 1, 2, 2, 1))
sketch14.addConstraint(Sketcher.Constraint("Coincident", 2, 2, 3, 1))
sketch14.addConstraint(Sketcher.Constraint("Coincident", 3, 2, 4, 1))
sketch14.addConstraint(Sketcher.Constraint("Coincident", 4, 2, 5, 1))
sketch14.addConstraint(Sketcher.Constraint("Coincident", 5, 2, 6, 1))
sketch14.addConstraint(Sketcher.Constraint("Coincident", 6, 2, 7, 1))
sketch14.addConstraint(Sketcher.Constraint("Coincident", 7, 2, 8, 1))
sketch14.addConstraint(Sketcher.Constraint("Coincident", 8, 2, 9, 1))
sketch14.addConstraint(Sketcher.Constraint("Coincident", 9, 2, 10, 1))
sketch14.addConstraint(Sketcher.Constraint("Coincident", 10, 2, 0, 1))
sketch14.addConstraint(Sketcher.Constraint("Horizontal", 0))
sketch14.addConstraint(Sketcher.Constraint("Vertical", 1))
sketch14.addConstraint(Sketcher.Constraint("Horizontal", 2))
sketch14.addConstraint(Sketcher.Constraint("Perpendicular", 3, 4))
sketch14.addConstraint(Sketcher.Constraint("Perpendicular", 4, 5))
sketch14.addConstraint(Sketcher.Constraint("Perpendicular", 5, 6))
sketch14.addConstraint(Sketcher.Constraint("Perpendicular", 6, 7))
sketch14.addConstraint(Sketcher.Constraint("Perpendicular", 7, 8))
sketch14.addConstraint(Sketcher.Constraint("Perpendicular", 8, 9))
sketch14.addConstraint(Sketcher.Constraint("Horizontal", 2, 2, 5, 2))
sketch14.addConstraint(Sketcher.Constraint("Equal", 4, 8))
sketch14.addConstraint(Sketcher.Constraint("DistanceX", 0, 1, 0, 2, Q("50 mm")))
sketch14.addConstraint(Sketcher.Constraint("DistanceY", 1, 1, 1, 2, Q("2 mm")))
sketch14.addConstraint(Sketcher.Constraint("Angle", 3, Q("70 deg")))
sketch14.addConstraint(Sketcher.Constraint("Distance", 4, Q("2 mm")))
sketch14.addConstraint(Sketcher.Constraint("Distance", 5, Q("25.000001 mm")))
sketch14.addConstraint(Sketcher.Constraint("Distance", 7, Q("5 mm")))
sketch14.addConstraint(Sketcher.Constraint("Distance", 9, Q("7.000001 mm")))
sketch14.addConstraint(Sketcher.Constraint("DistanceX", 0, 2, -1, 1, Q("50 mm")))
sketch14.addConstraint(Sketcher.Constraint("DistanceY", 0, 2, -1, 1, Q("75 mm")))
sketch14.addConstraint(Sketcher.Constraint("Distance", 6, Q("16.5 mm")))
sketch14.addConstraint(Sketcher.Constraint("Distance", 10, Q("19.184431 mm")))
pad6 = body4.newObject("PartDesign::Pad", "Pad005")
pad6.Profile = sketch14
pad6.Length = 65

doc.recompute()
